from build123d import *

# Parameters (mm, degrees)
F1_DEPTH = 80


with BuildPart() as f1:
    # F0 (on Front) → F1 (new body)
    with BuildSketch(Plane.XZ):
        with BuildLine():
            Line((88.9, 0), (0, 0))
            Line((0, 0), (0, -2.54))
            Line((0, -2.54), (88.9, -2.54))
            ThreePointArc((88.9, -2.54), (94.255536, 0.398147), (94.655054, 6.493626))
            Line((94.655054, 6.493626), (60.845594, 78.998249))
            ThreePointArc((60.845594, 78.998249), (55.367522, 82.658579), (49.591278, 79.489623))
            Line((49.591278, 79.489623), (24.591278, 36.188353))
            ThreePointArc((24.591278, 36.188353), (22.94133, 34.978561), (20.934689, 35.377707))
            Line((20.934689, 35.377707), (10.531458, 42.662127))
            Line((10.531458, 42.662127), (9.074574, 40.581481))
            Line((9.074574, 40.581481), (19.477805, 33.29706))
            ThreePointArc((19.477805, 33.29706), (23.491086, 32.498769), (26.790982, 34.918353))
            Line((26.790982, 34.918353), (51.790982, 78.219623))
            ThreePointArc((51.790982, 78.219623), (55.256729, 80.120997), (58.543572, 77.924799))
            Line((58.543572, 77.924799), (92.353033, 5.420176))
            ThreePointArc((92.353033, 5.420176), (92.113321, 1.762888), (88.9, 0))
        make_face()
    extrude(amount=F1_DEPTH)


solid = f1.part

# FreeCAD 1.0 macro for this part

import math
import FreeCAD as App
import Part
import Sketcher
Q = App.Units.Quantity

doc = App.newDocument("Part")
body = doc.addObject("PartDesign::Body", "Body")

# Sketch on XZ plane
sketch1 = body.newObject("Sketcher::SketchObject", "Sketch")
sketch1.AttachmentSupport = (doc.getObject("XZ_Plane"), [""])
sketch1.MapMode = "FlatFace"
sketch1.addGeometry(Part.LineSegment(App.Vector(88.9, 0, 0), App.Vector(0, 0, 0)), False)
sketch1.addGeometry(Part.LineSegment(App.Vector(0, 0, 0), App.Vector(0, -2.5, 0)), False)
sketch1.addGeometry(Part.LineSegment(App.Vector(0, -2.5, 0), App.Vector(88.9, -2.5, 0)), False)
sketch1.addGeometry(Part.ArcOfCircle(Part.Circle(App.Vector(88.9, 3.8, 0), App.Vector(0, 0, 1), 6.3), math.radians(-90), math.radians(25)), False)
sketch1.addGeometry(Part.LineSegment(App.Vector(94.7, 6.5, 0), App.Vector(60.8, 79, 0)), False)
sketch1.addGeometry(Part.ArcOfCircle(Part.Circle(App.Vector(55.1, 76.3, 0), App.Vector(0, 0, 1), 6.4), math.radians(25), math.radians(150)), False)
sketch1.addGeometry(Part.LineSegment(App.Vector(49.6, 79.5, 0), App.Vector(24.6, 36.2, 0)), False)
sketch1.addGeometry(Part.ArcOfCircle(Part.Circle(App.Vector(22.4, 37.5, 0), App.Vector(0, 0, 1), 2.5), math.radians(-125), math.radians(-30)), False)
sketch1.addGeometry(Part.LineSegment(App.Vector(20.9, 35.4, 0), App.Vector(10.5, 42.7, 0)), False)
sketch1.addGeometry(Part.LineSegment(App.Vector(10.5, 42.7, 0), App.Vector(9.1, 40.6, 0)), False)
sketch1.addGeometry(Part.LineSegment(App.Vector(9.1, 40.6, 0), App.Vector(19.5, 33.3, 0)), False)
sketch1.addGeometry(Part.ArcOfCircle(Part.Circle(App.Vector(22.4, 37.5, 0), App.Vector(0, 0, 1), 5.1), math.radians(-125), math.radians(-30)), False)
sketch1.addGeometry(Part.LineSegment(App.Vector(26.8, 34.9, 0), App.Vector(51.8, 78.2, 0)), False)
sketch1.addGeometry(Part.ArcOfCircle(Part.Circle(App.Vector(55.1, 76.3, 0), App.Vector(0, 0, 1), 3.8), math.radians(25), math.radians(150)), False)
sketch1.addGeometry(Part.LineSegment(App.Vector(58.5, 77.9, 0), App.Vector(92.4, 5.4, 0)), False)
sketch1.addGeometry(Part.ArcOfCircle(Part.Circle(App.Vector(88.9, 3.8, 0), App.Vector(0, 0, 1), 3.8), math.radians(-90), math.radians(25)), False)
sketch1.addConstraint(Sketcher.Constraint("Coincident", 0, 2, 1, 1))
sketch1.addConstraint(Sketcher.Constraint("Coincident", 1, 2, 2, 1))
sketch1.addConstraint(Sketcher.Constraint("Tangent", 2, 2, 3, 1))
sketch1.addConstraint(Sketcher.Constraint("Tangent", 3, 2, 4, 1))
sketch1.addConstraint(Sketcher.Constraint("Tangent", 4, 2, 5, 1))
sketch1.addConstraint(Sketcher.Constraint("Tangent", 5, 2, 6, 1))
sketch1.addConstraint(Sketcher.Constraint("Tangent", 6, 2, 7, 2))
sketch1.addConstraint(Sketcher.Constraint("Tangent", 7, 1, 8, 1))
sketch1.addConstraint(Sketcher.Constraint("Coincident", 8, 2, 9, 1))
sketch1.addConstraint(Sketcher.Constraint("Coincident", 9, 2, 10, 1))
sketch1.addConstraint(Sketcher.Constraint("Tangent", 10, 2, 11, 1))
sketch1.addConstraint(Sketcher.Constraint("Tangent", 11, 2, 12, 1))
sketch1.addConstraint(Sketcher.Constraint("Tangent", 12, 2, 13, 2))
sketch1.addConstraint(Sketcher.Constraint("Tangent", 13, 1, 14, 1))
sketch1.addConstraint(Sketcher.Constraint("Tangent", 14, 2, 15, 2))
sketch1.addConstraint(Sketcher.Constraint("Tangent", 15, 1, 0, 1))
sketch1.addConstraint(Sketcher.Constraint("Horizontal", 0))
sketch1.addConstraint(Sketcher.Constraint("Vertical", 1))
sketch1.addConstraint(Sketcher.Constraint("Horizontal", 2))
sketch1.addConstraint(Sketcher.Constraint("Coincident", 0, 2, -1, 1))
sketch1.addConstraint(Sketcher.Constraint("Coincident", 11, 3, 7, 3))
sketch1.addConstraint(Sketcher.Constraint("Coincident", 13, 3, 5, 3))
sketch1.addConstraint(Sketcher.Constraint("Coincident", 15, 3, 3, 3))
sketch1.addConstraint(Sketcher.Constraint("Equal", 3, 5))
sketch1.addConstraint(Sketcher.Constraint("Equal", 13, 15))
sketch1.addConstraint(Sketcher.Constraint("Perpendicular", 8, 9))
sketch1.addConstraint(Sketcher.Constraint("Perpendicular", 9, 10))
sketch1.addConstraint(Sketcher.Constraint("Parallel", 6, 12))
sketch1.addConstraint(Sketcher.Constraint("Radius", 7, Q("0.1 in")))
sketch1.addConstraint(Sketcher.Constraint("Radius", 11, Q("0.2 in")))
sketch1.addConstraint(Sketcher.Constraint("Radius", 3, Q("0.25 in")))
sketch1.addConstraint(Sketcher.Constraint("DistanceX", 0, 2, 0, 1, Q("3.5 in")))
sketch1.addConstraint(Sketcher.Constraint("Angle", 4, Q("114.999999 deg")))
sketch1.addConstraint(Sketcher.Constraint("Angle", 6, Q("-120 deg")))
sketch1.addConstraint(Sketcher.Constraint("Angle", 8, Q("145.000003 deg")))
sketch1.addConstraint(Sketcher.Constraint("Distance", 8, Q("0.5 in")))
sketch1.addConstraint(Sketcher.Constraint("Distance", 4, Q("80 mm")))
sketch1.addConstraint(Sketcher.Constraint("Distance", 6, Q("50 mm")))
pad1 = body.newObject("PartDesign::Pad", "Pad")
pad1.Profile = sketch1
pad1.Length = 80

doc.recompute()
